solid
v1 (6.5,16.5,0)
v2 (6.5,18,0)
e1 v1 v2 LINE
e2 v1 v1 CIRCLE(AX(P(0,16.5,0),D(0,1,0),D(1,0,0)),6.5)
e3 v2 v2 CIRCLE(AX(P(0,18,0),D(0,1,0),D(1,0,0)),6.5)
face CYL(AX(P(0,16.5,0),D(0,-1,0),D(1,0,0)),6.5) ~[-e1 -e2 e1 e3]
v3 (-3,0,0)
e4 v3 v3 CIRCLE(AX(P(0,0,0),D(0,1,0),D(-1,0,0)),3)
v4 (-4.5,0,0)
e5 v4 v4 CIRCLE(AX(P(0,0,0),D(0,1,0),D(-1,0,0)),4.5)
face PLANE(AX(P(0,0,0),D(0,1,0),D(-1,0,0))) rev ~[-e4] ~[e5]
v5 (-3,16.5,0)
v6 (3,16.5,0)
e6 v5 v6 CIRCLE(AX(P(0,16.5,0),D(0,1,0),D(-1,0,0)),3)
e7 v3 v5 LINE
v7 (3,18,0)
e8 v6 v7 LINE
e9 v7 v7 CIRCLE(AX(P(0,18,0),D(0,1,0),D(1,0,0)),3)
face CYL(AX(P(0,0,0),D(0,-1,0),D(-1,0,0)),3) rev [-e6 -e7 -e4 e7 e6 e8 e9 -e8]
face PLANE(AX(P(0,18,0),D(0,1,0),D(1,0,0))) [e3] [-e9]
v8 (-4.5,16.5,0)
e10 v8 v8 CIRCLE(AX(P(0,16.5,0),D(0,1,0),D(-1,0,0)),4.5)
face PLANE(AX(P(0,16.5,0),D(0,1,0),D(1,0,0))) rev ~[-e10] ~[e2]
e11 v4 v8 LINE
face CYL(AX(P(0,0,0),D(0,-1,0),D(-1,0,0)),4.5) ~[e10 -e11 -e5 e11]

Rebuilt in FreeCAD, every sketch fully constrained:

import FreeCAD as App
import Part
import Sketcher
from FreeCAD import Vector
Q = App.Units.Quantity

doc = App.newDocument("Part")
body = doc.addObject("PartDesign::Body", "Body")

sketch1 = body.newObject("Sketcher::SketchObject", "Sketch")
sketch1.AttachmentSupport = (doc.getObject("XZ_Plane"), [""])
sketch1.MapMode = "FlatFace"
sketch1.addGeometry([
    Part.Circle(Vector(0, 0, 0), Vector(0, 0, 1), 4.5),
    Part.Circle(Vector(0, 0, 0), Vector(0, 0, 1), 3),
], False)
sketch1.addConstraint([
    Sketcher.Constraint("Coincident", 0, 3, -1, 1),
    Sketcher.Constraint("Coincident", 1, 3, -1, 1),
    Sketcher.Constraint("Diameter", 0, Q("9 mm")),
    Sketcher.Constraint("Diameter", 1, Q("6 mm")),
])
pad1 = body.newObject("PartDesign::Pad", "Pad")
pad1.Profile = sketch1
pad1.Length = 16.5
pad1.Reversed = True

sketch2 = body.newObject("Sketcher::SketchObject", "Sketch001")
sketch2.AttachmentSupport = (doc.getObject("XZ_Plane"), [""])
sketch2.MapMode = "FlatFace"
sketch2.AttachmentOffset = App.Placement(Vector(0, 0, -16.5), App.Rotation())
sketch2.addGeometry([
    Part.Circle(Vector(0, 0, 0), Vector(0, 0, 1), 6.5),
    Part.Circle(Vector(0, 0, 0), Vector(0, 0, 1), 3),
], False)
sketch2.addConstraint([
    Sketcher.Constraint("Coincident", 0, 3, -1, 1),
    Sketcher.Constraint("Coincident", 1, 3, -1, 1),
    Sketcher.Constraint("Diameter", 0, Q("13 mm")),
    Sketcher.Constraint("Diameter", 1, Q("6 mm")),
])
pad2 = body.newObject("PartDesign::Pad", "Pad001")
pad2.Profile = sketch2
pad2.Length = 1.5
pad2.Reversed = True

doc.recompute()
